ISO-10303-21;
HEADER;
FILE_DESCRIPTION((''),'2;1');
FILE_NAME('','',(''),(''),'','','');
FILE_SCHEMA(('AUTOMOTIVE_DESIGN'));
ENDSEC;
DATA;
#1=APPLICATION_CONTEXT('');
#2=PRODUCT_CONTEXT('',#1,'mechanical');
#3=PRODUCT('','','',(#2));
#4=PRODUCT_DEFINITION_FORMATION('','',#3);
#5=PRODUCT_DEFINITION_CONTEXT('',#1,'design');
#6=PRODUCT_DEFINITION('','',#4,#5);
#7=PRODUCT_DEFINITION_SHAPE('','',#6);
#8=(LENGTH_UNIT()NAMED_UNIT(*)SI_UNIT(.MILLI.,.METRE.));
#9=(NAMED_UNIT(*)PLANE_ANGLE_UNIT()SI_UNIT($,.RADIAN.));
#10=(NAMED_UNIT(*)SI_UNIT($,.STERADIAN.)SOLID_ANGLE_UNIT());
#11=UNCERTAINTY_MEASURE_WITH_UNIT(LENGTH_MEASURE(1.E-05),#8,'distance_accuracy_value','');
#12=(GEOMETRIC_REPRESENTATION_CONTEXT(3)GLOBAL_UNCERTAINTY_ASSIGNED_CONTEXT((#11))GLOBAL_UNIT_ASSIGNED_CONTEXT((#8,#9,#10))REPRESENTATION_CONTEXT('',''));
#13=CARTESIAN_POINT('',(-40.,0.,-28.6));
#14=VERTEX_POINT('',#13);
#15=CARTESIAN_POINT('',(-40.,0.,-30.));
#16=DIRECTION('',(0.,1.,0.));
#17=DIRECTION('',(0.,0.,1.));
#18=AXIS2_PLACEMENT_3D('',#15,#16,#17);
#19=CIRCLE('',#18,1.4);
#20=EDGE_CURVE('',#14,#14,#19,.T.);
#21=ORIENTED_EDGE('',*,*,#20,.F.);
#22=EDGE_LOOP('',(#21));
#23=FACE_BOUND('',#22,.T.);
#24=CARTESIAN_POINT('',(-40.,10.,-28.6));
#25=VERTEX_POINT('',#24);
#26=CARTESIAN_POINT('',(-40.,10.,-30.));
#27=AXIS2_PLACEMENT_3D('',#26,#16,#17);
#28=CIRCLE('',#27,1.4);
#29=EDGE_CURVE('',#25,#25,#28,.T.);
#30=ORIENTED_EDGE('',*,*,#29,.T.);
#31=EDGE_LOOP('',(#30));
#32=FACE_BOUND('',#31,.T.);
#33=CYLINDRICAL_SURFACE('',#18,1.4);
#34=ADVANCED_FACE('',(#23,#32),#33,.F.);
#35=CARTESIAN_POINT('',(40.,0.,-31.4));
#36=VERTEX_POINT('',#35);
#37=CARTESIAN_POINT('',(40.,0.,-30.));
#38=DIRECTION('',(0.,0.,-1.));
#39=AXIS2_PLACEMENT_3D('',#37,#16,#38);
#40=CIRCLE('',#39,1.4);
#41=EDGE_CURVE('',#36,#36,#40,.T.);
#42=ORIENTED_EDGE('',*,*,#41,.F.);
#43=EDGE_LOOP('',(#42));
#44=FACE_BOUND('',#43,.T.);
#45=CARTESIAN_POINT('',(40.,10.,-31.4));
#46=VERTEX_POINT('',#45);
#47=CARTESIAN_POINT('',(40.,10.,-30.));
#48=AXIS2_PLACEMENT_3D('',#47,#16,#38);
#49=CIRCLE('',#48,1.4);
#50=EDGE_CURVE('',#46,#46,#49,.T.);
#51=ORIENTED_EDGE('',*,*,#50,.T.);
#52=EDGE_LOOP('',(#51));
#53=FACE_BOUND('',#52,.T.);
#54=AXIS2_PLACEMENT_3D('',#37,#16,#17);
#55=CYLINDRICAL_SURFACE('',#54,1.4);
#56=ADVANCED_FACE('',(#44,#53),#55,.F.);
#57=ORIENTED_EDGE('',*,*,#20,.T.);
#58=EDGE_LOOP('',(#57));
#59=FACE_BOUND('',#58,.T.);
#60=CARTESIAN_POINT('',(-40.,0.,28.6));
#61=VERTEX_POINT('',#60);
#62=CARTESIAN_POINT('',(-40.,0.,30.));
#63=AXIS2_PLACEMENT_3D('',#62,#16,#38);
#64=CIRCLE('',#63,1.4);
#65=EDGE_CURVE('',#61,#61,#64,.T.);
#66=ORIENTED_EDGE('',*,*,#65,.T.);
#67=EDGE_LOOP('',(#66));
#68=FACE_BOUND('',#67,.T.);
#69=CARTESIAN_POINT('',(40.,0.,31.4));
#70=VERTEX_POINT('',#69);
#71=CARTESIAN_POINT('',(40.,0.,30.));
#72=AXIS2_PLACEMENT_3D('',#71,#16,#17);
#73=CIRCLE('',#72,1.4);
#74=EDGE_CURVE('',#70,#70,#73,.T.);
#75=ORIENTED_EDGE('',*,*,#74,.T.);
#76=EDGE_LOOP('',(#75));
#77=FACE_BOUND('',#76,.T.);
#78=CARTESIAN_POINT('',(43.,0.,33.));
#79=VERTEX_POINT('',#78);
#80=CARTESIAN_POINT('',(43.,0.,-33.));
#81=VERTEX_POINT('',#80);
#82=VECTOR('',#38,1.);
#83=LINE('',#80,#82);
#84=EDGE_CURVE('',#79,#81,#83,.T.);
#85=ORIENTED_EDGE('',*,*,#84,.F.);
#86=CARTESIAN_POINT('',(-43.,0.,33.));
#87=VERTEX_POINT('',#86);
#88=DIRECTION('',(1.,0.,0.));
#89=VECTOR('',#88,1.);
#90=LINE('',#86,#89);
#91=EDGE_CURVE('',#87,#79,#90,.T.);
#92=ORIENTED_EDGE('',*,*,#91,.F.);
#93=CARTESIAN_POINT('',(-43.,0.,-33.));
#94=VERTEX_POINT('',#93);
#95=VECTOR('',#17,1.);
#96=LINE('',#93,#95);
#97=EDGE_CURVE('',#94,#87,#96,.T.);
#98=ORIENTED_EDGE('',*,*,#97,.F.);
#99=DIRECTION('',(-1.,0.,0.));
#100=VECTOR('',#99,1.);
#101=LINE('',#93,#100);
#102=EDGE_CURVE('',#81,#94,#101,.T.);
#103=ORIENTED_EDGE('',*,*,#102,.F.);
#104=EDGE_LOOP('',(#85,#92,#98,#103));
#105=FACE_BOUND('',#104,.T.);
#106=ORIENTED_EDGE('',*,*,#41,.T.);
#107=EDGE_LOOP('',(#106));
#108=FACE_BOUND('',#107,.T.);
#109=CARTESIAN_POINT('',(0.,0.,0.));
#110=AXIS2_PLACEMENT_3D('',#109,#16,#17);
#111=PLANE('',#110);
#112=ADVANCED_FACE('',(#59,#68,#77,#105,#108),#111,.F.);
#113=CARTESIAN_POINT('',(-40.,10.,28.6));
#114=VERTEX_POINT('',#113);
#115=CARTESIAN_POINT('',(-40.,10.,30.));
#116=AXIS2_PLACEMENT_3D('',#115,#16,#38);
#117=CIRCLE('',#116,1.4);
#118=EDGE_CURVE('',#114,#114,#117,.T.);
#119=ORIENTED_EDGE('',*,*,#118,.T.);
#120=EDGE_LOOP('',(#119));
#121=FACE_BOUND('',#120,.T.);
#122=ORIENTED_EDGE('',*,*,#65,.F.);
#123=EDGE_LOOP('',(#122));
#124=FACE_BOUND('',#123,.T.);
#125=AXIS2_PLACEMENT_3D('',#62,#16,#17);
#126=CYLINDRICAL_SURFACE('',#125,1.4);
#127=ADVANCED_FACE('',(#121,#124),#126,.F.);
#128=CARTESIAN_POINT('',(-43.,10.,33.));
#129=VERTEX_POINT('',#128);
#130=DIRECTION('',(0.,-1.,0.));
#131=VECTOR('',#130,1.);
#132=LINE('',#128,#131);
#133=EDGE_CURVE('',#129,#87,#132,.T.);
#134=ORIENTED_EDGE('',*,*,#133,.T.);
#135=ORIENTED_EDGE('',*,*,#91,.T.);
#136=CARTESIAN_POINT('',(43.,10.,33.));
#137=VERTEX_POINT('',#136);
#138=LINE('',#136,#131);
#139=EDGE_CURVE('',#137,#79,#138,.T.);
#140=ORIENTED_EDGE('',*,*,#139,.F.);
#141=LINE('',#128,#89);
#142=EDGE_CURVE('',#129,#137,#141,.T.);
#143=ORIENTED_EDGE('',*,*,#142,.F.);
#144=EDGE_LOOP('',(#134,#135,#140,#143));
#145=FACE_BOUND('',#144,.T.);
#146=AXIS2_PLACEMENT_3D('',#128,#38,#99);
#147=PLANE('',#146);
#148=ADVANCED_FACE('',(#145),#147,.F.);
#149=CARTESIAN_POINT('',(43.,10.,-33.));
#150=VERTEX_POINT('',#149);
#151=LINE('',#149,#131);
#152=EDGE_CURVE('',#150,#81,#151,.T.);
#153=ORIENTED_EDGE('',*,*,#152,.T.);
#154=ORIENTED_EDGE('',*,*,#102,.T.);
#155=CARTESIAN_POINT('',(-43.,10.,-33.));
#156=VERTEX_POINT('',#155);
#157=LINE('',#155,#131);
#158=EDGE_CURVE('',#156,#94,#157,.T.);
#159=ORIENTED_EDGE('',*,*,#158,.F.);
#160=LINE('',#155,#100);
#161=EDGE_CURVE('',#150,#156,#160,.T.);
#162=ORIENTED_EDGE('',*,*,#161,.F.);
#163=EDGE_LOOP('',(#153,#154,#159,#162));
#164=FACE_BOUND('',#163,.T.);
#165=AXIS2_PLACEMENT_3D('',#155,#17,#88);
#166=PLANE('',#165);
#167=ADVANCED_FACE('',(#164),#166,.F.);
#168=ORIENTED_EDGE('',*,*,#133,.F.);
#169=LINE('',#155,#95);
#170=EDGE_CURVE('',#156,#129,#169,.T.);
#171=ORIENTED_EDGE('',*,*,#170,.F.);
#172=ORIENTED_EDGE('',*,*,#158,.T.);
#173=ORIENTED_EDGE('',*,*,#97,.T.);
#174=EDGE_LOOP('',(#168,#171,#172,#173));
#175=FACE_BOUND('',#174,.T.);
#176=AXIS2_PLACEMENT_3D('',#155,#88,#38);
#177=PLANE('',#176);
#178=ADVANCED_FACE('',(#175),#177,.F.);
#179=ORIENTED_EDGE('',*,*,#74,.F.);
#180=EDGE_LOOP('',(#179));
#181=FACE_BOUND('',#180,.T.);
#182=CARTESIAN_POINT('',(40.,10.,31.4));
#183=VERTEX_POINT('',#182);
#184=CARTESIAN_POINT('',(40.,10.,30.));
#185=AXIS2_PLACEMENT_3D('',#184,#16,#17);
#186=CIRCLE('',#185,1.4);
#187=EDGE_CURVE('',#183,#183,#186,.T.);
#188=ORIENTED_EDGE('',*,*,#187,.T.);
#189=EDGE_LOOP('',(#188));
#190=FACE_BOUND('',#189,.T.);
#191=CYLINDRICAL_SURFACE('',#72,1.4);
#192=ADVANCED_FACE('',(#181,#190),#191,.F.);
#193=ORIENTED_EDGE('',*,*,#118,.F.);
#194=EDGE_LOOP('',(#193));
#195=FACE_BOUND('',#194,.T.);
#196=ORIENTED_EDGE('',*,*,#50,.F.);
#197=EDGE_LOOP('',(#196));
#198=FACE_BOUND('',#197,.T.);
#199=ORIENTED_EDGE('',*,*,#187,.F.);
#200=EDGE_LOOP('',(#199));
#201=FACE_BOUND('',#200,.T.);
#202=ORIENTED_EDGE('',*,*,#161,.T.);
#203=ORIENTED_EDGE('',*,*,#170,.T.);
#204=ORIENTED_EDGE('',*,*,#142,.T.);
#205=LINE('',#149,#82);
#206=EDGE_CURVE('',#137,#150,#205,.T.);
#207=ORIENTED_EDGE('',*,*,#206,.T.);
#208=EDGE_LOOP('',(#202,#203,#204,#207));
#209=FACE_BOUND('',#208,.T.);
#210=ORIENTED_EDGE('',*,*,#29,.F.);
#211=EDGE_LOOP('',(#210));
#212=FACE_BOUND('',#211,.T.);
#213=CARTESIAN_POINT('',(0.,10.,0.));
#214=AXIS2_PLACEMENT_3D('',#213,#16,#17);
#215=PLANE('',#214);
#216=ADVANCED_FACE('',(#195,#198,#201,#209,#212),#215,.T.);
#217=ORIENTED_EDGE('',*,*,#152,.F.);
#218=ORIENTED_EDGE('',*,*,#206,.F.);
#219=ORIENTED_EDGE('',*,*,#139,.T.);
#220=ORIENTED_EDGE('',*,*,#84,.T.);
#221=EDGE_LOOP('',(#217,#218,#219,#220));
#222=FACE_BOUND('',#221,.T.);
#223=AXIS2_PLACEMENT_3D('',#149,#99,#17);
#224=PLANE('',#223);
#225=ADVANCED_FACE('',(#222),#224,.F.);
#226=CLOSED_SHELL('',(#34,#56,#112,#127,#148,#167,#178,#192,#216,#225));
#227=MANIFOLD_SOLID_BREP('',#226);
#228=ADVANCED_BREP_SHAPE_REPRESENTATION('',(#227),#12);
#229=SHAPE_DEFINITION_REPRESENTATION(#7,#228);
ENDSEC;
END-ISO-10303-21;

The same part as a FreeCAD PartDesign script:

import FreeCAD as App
import Part
import Sketcher
from FreeCAD import Vector
Q = App.Units.Quantity

doc = App.newDocument("Part")
params = doc.addObject("Spreadsheet::Sheet", "Params")
for row, (alias, value) in enumerate([
    ("sketch1_width", "86 mm"),
    ("sketch1_height", "66 mm"),
    ("pad1_length", "10 mm"),
    ("sketch2_diameter", "2.8 mm"),
], start=1):
    params.set(f"A{row}", alias)
    params.set(f"B{row}", "=" + value)
    params.setAlias(f"B{row}", alias)

body = doc.addObject("PartDesign::Body", "Body")

# Sketch on XZ plane
sketch1 = body.newObject("Sketcher::SketchObject", "Sketch")
sketch1.AttachmentSupport = (doc.getObject("XZ_Plane"), [""])
sketch1.MapMode = "FlatFace"
sketch1.addGeometry(Part.LineSegment(Vector(-43, -33, 0), Vector(-43, 33, 0)), False)
sketch1.addGeometry(Part.LineSegment(Vector(-43, 33, 0), Vector(43, 33, 0)), False)
sketch1.addGeometry(Part.LineSegment(Vector(43, 33, 0), Vector(43, -33, 0)), False)
sketch1.addGeometry(Part.LineSegment(Vector(43, -33, 0), Vector(-43, -33, 0)), False)
sketch1.addConstraint(Sketcher.Constraint("Coincident", 0, 2, 1, 1))
sketch1.addConstraint(Sketcher.Constraint("Coincident", 1, 2, 2, 1))
sketch1.addConstraint(Sketcher.Constraint("Coincident", 2, 2, 3, 1))
sketch1.addConstraint(Sketcher.Constraint("Coincident", 3, 2, 0, 1))
sketch1.addConstraint(Sketcher.Constraint("Vertical", 0))
sketch1.addConstraint(Sketcher.Constraint("Horizontal", 1))
sketch1.addConstraint(Sketcher.Constraint("Vertical", 2))
sketch1.addConstraint(Sketcher.Constraint("Horizontal", 3))
sketch1.addConstraint(Sketcher.Constraint("Symmetric", 0, 2, 2, 2, -1, 1))
sketch1.addConstraint(Sketcher.Constraint("DistanceX", 1, 1, 1, 2, Q("86 mm")))
sketch1.addConstraint(Sketcher.Constraint("DistanceY", 0, 1, 0, 2, Q("66 mm")))
sketch1.setExpression("Constraints[9]", "Params.sketch1_width")
sketch1.setExpression("Constraints[10]", "Params.sketch1_height")
pad1 = body.newObject("PartDesign::Pad", "Pad")
pad1.Profile = sketch1
pad1.setExpression("Length", "Params.pad1_length")
pad1.Reversed = True

# Sketch on XZ plane
sketch2 = body.newObject("Sketcher::SketchObject", "Sketch001")
sketch2.AttachmentSupport = (doc.getObject("XZ_Plane"), [""])
sketch2.MapMode = "FlatFace"
sketch2.AttachmentOffset = App.Placement(Vector(0, 0, -10), App.Rotation())
sketch2.addGeometry(Part.Circle(Vector(-40, -30, 0), Vector(0, 0, 1), 1.4), False)
sketch2.addGeometry(Part.Circle(Vector(40, -30, 0), Vector(0, 0, 1), 1.4), False)
sketch2.addGeometry(Part.Circle(Vector(40, 30, 0), Vector(0, 0, 1), 1.4), False)
sketch2.addGeometry(Part.Circle(Vector(-40, 30, 0), Vector(0, 0, 1), 1.4), False)
sketch2.addConstraint(Sketcher.Constraint("Equal", 0, 1))
sketch2.addConstraint(Sketcher.Constraint("Equal", 1, 2))
sketch2.addConstraint(Sketcher.Constraint("Equal", 2, 3))
sketch2.addConstraint(Sketcher.Constraint("Symmetric", 0, 3, 2, 3, -1, 1))
sketch2.addConstraint(Sketcher.Constraint("Symmetric", 1, 3, 3, 3, -1, 1))
sketch2.addConstraint(Sketcher.Constraint("Symmetric", 0, 3, 1, 3, -2))
sketch2.addConstraint(Sketcher.Constraint("Diameter", 0, Q("2.8 mm")))
sketch2.addConstraint(Sketcher.Constraint("DistanceX", 0, 3, -1, 1, Q("40 mm")))
sketch2.addConstraint(Sketcher.Constraint("DistanceY", 0, 3, -1, 1, Q("30 mm")))
sketch2.setExpression("Constraints[6]", "Params.sketch2_diameter")
pocket1 = body.newObject("PartDesign::Pocket", "Pocket")
pocket1.Profile = sketch2
pocket1.Type = "ThroughAll"
pocket1.Reversed = True

doc.recompute()
